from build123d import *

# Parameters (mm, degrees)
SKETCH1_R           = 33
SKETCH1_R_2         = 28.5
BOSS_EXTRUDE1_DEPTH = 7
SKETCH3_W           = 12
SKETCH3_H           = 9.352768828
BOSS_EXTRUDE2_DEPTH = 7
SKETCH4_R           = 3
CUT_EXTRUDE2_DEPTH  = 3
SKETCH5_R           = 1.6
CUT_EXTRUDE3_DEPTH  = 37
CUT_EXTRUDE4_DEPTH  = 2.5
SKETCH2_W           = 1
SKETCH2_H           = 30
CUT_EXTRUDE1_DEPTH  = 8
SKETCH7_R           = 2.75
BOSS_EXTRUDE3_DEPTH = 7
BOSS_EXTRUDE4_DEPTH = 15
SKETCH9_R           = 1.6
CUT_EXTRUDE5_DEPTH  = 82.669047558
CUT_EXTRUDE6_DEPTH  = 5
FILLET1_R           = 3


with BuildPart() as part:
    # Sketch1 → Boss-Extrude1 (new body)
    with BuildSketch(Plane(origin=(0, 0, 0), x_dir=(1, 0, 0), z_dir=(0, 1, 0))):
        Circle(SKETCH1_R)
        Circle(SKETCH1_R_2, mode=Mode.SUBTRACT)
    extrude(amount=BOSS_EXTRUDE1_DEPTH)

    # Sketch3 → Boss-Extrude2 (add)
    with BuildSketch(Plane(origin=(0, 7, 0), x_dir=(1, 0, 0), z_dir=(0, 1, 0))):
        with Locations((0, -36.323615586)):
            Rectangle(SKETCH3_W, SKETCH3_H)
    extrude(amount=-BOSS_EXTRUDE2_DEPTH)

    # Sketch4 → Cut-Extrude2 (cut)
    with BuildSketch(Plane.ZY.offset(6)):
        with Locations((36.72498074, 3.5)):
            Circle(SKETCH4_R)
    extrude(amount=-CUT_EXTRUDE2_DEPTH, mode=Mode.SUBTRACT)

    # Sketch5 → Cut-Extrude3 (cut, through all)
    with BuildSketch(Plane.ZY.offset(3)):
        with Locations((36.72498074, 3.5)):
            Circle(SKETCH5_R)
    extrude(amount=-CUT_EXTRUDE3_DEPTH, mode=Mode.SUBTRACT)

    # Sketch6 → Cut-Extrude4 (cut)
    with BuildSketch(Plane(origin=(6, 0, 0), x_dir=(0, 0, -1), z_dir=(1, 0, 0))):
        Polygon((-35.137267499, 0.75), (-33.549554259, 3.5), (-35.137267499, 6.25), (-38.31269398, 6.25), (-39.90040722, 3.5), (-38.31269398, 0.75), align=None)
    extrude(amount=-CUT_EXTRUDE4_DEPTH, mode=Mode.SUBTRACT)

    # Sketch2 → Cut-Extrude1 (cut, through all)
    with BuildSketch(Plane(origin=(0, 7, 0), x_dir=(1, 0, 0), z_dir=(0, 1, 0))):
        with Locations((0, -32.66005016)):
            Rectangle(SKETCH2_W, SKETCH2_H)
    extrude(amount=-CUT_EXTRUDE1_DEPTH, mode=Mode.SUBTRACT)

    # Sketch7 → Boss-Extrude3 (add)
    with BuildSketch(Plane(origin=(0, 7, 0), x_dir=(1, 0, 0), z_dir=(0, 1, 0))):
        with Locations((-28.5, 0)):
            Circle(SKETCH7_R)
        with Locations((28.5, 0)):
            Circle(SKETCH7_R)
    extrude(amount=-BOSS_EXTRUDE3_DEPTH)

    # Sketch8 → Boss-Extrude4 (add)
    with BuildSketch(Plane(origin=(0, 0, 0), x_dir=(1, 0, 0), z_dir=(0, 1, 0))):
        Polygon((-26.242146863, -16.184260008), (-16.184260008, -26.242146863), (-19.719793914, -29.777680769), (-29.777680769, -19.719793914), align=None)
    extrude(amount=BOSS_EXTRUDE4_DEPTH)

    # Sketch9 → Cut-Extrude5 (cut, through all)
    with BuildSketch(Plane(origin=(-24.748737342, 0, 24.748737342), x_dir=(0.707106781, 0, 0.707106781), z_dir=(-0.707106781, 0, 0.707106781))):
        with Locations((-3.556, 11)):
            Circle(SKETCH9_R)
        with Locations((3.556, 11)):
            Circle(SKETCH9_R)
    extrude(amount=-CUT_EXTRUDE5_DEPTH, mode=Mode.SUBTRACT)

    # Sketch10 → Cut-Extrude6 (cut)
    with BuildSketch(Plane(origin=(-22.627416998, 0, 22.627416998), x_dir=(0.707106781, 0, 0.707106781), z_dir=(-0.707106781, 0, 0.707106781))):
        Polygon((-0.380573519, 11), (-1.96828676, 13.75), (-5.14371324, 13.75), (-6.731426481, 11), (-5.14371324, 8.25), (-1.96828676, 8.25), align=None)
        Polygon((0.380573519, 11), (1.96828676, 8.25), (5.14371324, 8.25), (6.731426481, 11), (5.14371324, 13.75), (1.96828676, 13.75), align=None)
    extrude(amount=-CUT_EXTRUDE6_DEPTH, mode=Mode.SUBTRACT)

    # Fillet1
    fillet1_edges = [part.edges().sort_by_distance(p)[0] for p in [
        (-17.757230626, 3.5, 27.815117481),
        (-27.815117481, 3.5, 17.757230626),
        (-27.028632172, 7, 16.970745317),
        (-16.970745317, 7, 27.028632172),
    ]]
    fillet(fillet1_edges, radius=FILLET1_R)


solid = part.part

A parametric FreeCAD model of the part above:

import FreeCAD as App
import Part
import Sketcher
from FreeCAD import Vector
Q = App.Units.Quantity


def edges_at(feature, points):
    """Names of the edges that pass closest to the given points."""
    edges = feature.Shape.Edges
    near = lambda p: min(range(len(edges)), key=lambda i: edges[i].distToShape(Part.Vertex(*p))[0])
    return sorted({f"Edge{near(p) + 1}" for p in points})

doc = App.newDocument("Part")
params = doc.addObject("Spreadsheet::Sheet", "Params")
for row, (alias, value) in enumerate([
    ("sketch1_diameter", "66 mm"),
    ("sketch1_diameter2", "57 mm"),
    ("pad1_length", "7 mm"),
    ("sketch2_width", "12 mm"),
    ("pad2_length", "7 mm"),
    ("sketch3_diameter", "6 mm"),
    ("pocket1_length", "3 mm"),
    ("sketch4_diameter", "3.2 mm"),
    ("pocket3_length", "2.5 mm"),
    ("sketch6_width", "1 mm"),
    ("sketch6_height", "30 mm"),
    ("sketch7_diameter", "5.5 mm"),
    ("pad3_length", "7 mm"),
    ("sketch8_length", "5 mm"),
    ("pad4_length", "15 mm"),
    ("sketch9_diameter", "3.2 mm"),
    ("pocket6_length", "5 mm"),
    ("fillet_radius", "3 mm"),
], start=1):
    params.set(f"A{row}", alias)
    params.set(f"B{row}", "=" + value)
    params.setAlias(f"B{row}", alias)

body = doc.addObject("PartDesign::Body", "Body")

# Sketch on XZ plane
sketch1 = body.newObject("Sketcher::SketchObject", "Sketch")
sketch1.AttachmentSupport = (doc.getObject("XZ_Plane"), [""])
sketch1.MapMode = "FlatFace"
sketch1.addGeometry([
    Part.Circle(Vector(0, 0, 0), Vector(0, 0, 1), 33),
    Part.Circle(Vector(0, 0, 0), Vector(0, 0, 1), 28.5),
], False)
sketch1.addConstraint([
    Sketcher.Constraint("Coincident", 0, 3, -1, 1),
    Sketcher.Constraint("Coincident", 1, 3, -1, 1),
    Sketcher.Constraint("Diameter", 0, Q("66 mm")),
    Sketcher.Constraint("Diameter", 1, Q("57 mm")),
])
sketch1.setExpression("Constraints[2]", "Params.sketch1_diameter")
sketch1.setExpression("Constraints[3]", "Params.sketch1_diameter2")
pad1 = body.newObject("PartDesign::Pad", "Pad")
pad1.Profile = sketch1
pad1.setExpression("Length", "Params.pad1_length")
pad1.Reversed = True

# Sketch on XZ plane
sketch2 = body.newObject("Sketcher::SketchObject", "Sketch001")
sketch2.AttachmentSupport = (doc.getObject("XZ_Plane"), [""])
sketch2.MapMode = "FlatFace"
sketch2.AttachmentOffset = App.Placement(Vector(0, 0, -7), App.Rotation())
sketch2.addGeometry([
    Part.LineSegment(Vector(-6, 31.647231, 0), Vector(-6, 41, 0)),
    Part.LineSegment(Vector(-6, 41, 0), Vector(6, 41, 0)),
    Part.LineSegment(Vector(6, 41, 0), Vector(6, 31.647231, 0)),
    Part.LineSegment(Vector(6, 31.647231, 0), Vector(-6, 31.647231, 0)),
], False)
sketch2.addConstraint([
    Sketcher.Constraint("Coincident", 0, 2, 1, 1),
    Sketcher.Constraint("Coincident", 1, 2, 2, 1),
    Sketcher.Constraint("Coincident", 2, 2, 3, 1),
    Sketcher.Constraint("Coincident", 3, 2, 0, 1),
    Sketcher.Constraint("Vertical", 0),
    Sketcher.Constraint("Horizontal", 1),
    Sketcher.Constraint("Vertical", 2),
    Sketcher.Constraint("Horizontal", 3),
    Sketcher.Constraint("DistanceX", 1, 1, 1, 2, Q("12 mm")),
    Sketcher.Constraint("DistanceX", 0, 2, -1, 1, Q("6 mm")),
    Sketcher.Constraint("DistanceY", -1, 1, 0, 2, Q("41 mm")),
    Sketcher.Constraint("DistanceY", 0, 1, 0, 2, Q("9.352769 mm")),
])
sketch2.setExpression("Constraints[8]", "Params.sketch2_width")
pad2 = body.newObject("PartDesign::Pad", "Pad001")
pad2.Profile = sketch2
pad2.setExpression("Length", "Params.pad2_length")

# Sketch on YZ plane
sketch3 = body.newObject("Sketcher::SketchObject", "Sketch002")
sketch3.AttachmentSupport = (doc.getObject("YZ_Plane"), [""])
sketch3.MapMode = "FlatFace"
sketch3.AttachmentOffset = App.Placement(Vector(0, 0, -6), App.Rotation())
sketch3.addGeometry(Part.Circle(Vector(3.5, 36.724981, 0), Vector(0, 0, 1), 3), False)
sketch3.addConstraint([
    Sketcher.Constraint("Diameter", 0, Q("6 mm")),
    Sketcher.Constraint("DistanceX", -1, 1, 0, 3, Q("3.5 mm")),
    Sketcher.Constraint("DistanceY", -1, 1, 0, 3, Q("36.724981 mm")),
])
sketch3.setExpression("Constraints[0]", "Params.sketch3_diameter")
pocket1 = body.newObject("PartDesign::Pocket", "Pocket")
pocket1.Profile = sketch3
pocket1.setExpression("Length", "Params.pocket1_length")
pocket1.Reversed = True

# Sketch on YZ plane
sketch4 = body.newObject("Sketcher::SketchObject", "Sketch003")
sketch4.AttachmentSupport = (doc.getObject("YZ_Plane"), [""])
sketch4.MapMode = "FlatFace"
sketch4.AttachmentOffset = App.Placement(Vector(0, 0, -3), App.Rotation())
sketch4.addGeometry(Part.Circle(Vector(3.5, 36.724981, 0), Vector(0, 0, 1), 1.6), False)
sketch4.addConstraint([
    Sketcher.Constraint("Diameter", 0, Q("3.2 mm")),
    Sketcher.Constraint("DistanceX", -1, 1, 0, 3, Q("3.5 mm")),
    Sketcher.Constraint("DistanceY", -1, 1, 0, 3, Q("36.724981 mm")),
])
sketch4.setExpression("Constraints[0]", "Params.sketch4_diameter")
pocket2 = body.newObject("PartDesign::Pocket", "Pocket001")
pocket2.Profile = sketch4
pocket2.Type = "ThroughAll"
pocket2.Reversed = True

# Sketch on YZ plane
sketch5 = body.newObject("Sketcher::SketchObject", "Sketch004")
sketch5.AttachmentSupport = (doc.getObject("YZ_Plane"), [""])
sketch5.MapMode = "FlatFace"
sketch5.AttachmentOffset = App.Placement(Vector(0, 0, 6), App.Rotation())
sketch5.addGeometry([
    Part.LineSegment(Vector(0.75, 35.137267, 0), Vector(3.5, 33.549554, 0)),  # 0
    Part.LineSegment(Vector(3.5, 33.549554, 0), Vector(6.25, 35.137267, 0)),  # 1
    Part.LineSegment(Vector(6.25, 35.137267, 0), Vector(6.25, 38.312694, 0)),  # 2
    Part.LineSegment(Vector(6.25, 38.312694, 0), Vector(3.5, 39.900407, 0)),  # 3
    Part.LineSegment(Vector(3.5, 39.900407, 0), Vector(0.75, 38.312694, 0)),  # 4
    Part.LineSegment(Vector(0.75, 38.312694, 0), Vector(0.75, 35.137267, 0)),  # 5
], False)
sketch5.addConstraint([
    Sketcher.Constraint("Coincident", 0, 2, 1, 1),
    Sketcher.Constraint("Coincident", 1, 2, 2, 1),
    Sketcher.Constraint("Coincident", 2, 2, 3, 1),
    Sketcher.Constraint("Coincident", 3, 2, 4, 1),
    Sketcher.Constraint("Coincident", 4, 2, 5, 1),
    Sketcher.Constraint("Coincident", 5, 2, 0, 1),
    Sketcher.Constraint("Vertical", 2),
    Sketcher.Constraint("Vertical", 5),
    Sketcher.Constraint("Parallel", 0, 3),
    Sketcher.Constraint("Parallel", 1, 4),
    Sketcher.Constraint("Horizontal", 2, 2, 4, 2),
    Sketcher.Constraint("Horizontal", 1, 2, 5, 2),
    Sketcher.Constraint("Vertical", 0, 2, 3, 2),
    Sketcher.Constraint("Angle", 0, Q("-30 deg")),
    Sketcher.Constraint("DistanceX", -1, 1, 0, 2, Q("3.5 mm")),
    Sketcher.Constraint("DistanceX", 4, 2, 2, 2, Q("5.5 mm")),
    Sketcher.Constraint("DistanceY", 2, 1, 2, 2, Q("3.175426 mm")),
    Sketcher.Constraint("DistanceY", -1, 1, 0, 2, Q("33.549554 mm")),
])
pocket3 = body.newObject("PartDesign::Pocket", "Pocket002")
pocket3.Profile = sketch5
pocket3.setExpression("Length", "Params.pocket3_length")

# Sketch on XZ plane
sketch6 = body.newObject("Sketcher::SketchObject", "Sketch005")
sketch6.AttachmentSupport = (doc.getObject("XZ_Plane"), [""])
sketch6.MapMode = "FlatFace"
sketch6.AttachmentOffset = App.Placement(Vector(0, 0, -7), App.Rotation())
sketch6.addGeometry([
    Part.LineSegment(Vector(-0.5, 17.66005, 0), Vector(-0.5, 47.66005, 0)),
    Part.LineSegment(Vector(-0.5, 47.66005, 0), Vector(0.5, 47.66005, 0)),
    Part.LineSegment(Vector(0.5, 47.66005, 0), Vector(0.5, 17.66005, 0)),
    Part.LineSegment(Vector(0.5, 17.66005, 0), Vector(-0.5, 17.66005, 0)),
], False)
sketch6.addConstraint([
    Sketcher.Constraint("Coincident", 0, 2, 1, 1),
    Sketcher.Constraint("Coincident", 1, 2, 2, 1),
    Sketcher.Constraint("Coincident", 2, 2, 3, 1),
    Sketcher.Constraint("Coincident", 3, 2, 0, 1),
    Sketcher.Constraint("Vertical", 0),
    Sketcher.Constraint("Horizontal", 1),
    Sketcher.Constraint("Vertical", 2),
    Sketcher.Constraint("Horizontal", 3),
    Sketcher.Constraint("DistanceX", 1, 1, 1, 2, Q("1 mm")),
    Sketcher.Constraint("DistanceY", 0, 1, 0, 2, Q("30 mm")),
    Sketcher.Constraint("DistanceX", 0, 2, -1, 1, Q("0.5 mm")),
    Sketcher.Constraint("DistanceY", -1, 1, 0, 2, Q("47.66005 mm")),
])
sketch6.setExpression("Constraints[8]", "Params.sketch6_width")
sketch6.setExpression("Constraints[9]", "Params.sketch6_height")
pocket4 = body.newObject("PartDesign::Pocket", "Pocket003")
pocket4.Profile = sketch6
pocket4.Type = "ThroughAll"
pocket4.Reversed = True

# Sketch on XZ plane
sketch7 = body.newObject("Sketcher::SketchObject", "Sketch006")
sketch7.AttachmentSupport = (doc.getObject("XZ_Plane"), [""])
sketch7.MapMode = "FlatFace"
sketch7.AttachmentOffset = App.Placement(Vector(0, 0, -7), App.Rotation())
sketch7.addGeometry([
    Part.Circle(Vector(-28.5, 0, 0), Vector(0, 0, 1), 2.75),
    Part.Circle(Vector(28.5, 0, 0), Vector(0, 0, 1), 2.75),
], False)
sketch7.addConstraint([
    Sketcher.Constraint("Equal", 0, 1),
    Sketcher.Constraint("Symmetric", 0, 3, 1, 3, -1, 1),
    Sketcher.Constraint("PointOnObject", 0, 3, -1),
    Sketcher.Constraint("Diameter", 0, Q("5.5 mm")),
    Sketcher.Constraint("DistanceX", 0, 3, 1, 3, Q("57 mm")),
])
sketch7.setExpression("Constraints[3]", "Params.sketch7_diameter")
pad3 = body.newObject("PartDesign::Pad", "Pad002")
pad3.Profile = sketch7
pad3.setExpression("Length", "Params.pad3_length")

# Sketch on XZ plane
sketch8 = body.newObject("Sketcher::SketchObject", "Sketch007")
sketch8.AttachmentSupport = (doc.getObject("XZ_Plane"), [""])
sketch8.MapMode = "FlatFace"
sketch8.addGeometry([
    Part.LineSegment(Vector(-16.18426, 26.242147, 0), Vector(-26.242147, 16.18426, 0)),
    Part.LineSegment(Vector(-26.242147, 16.18426, 0), Vector(-29.777681, 19.719794, 0)),
    Part.LineSegment(Vector(-29.777681, 19.719794, 0), Vector(-19.719794, 29.777681, 0)),
    Part.LineSegment(Vector(-19.719794, 29.777681, 0), Vector(-16.18426, 26.242147, 0)),
], False)
sketch8.addConstraint([
    Sketcher.Constraint("Coincident", 0, 2, 1, 1),
    Sketcher.Constraint("Coincident", 1, 2, 2, 1),
    Sketcher.Constraint("Coincident", 2, 2, 3, 1),
    Sketcher.Constraint("Coincident", 3, 2, 0, 1),
    Sketcher.Constraint("Perpendicular", 0, 1),
    Sketcher.Constraint("Perpendicular", 1, 2),
    Sketcher.Constraint("Perpendicular", 2, 3),
    Sketcher.Constraint("Angle", 0, Q("-135 deg")),
    Sketcher.Constraint("Distance", 1, Q("5 mm")),
    Sketcher.Constraint("Distance", 0, Q("14.224 mm")),
    Sketcher.Constraint("DistanceY", -1, 1, 0, 2, Q("16.18426 mm")),
    Sketcher.Constraint("DistanceX", 1, 2, -1, 1, Q("29.777681 mm")),
])
sketch8.setExpression("Constraints[8]", "Params.sketch8_length")
pad4 = body.newObject("PartDesign::Pad", "Pad003")
pad4.Profile = sketch8
pad4.setExpression("Length", "Params.pad4_length")
pad4.Reversed = True

# Sketch on an angled plane
sketch9 = body.newObject("Sketcher::SketchObject", "Sketch008")
sketch9.Placement = App.Placement(Vector(-24.748737, 0, 24.748737), App.Rotation(Vector(0.707106781, 0, 0.707106781), Vector(0, 0.999999999, 0), Vector(-0.707106781, 0, 0.707106781), "ZXY"))
sketch9.addGeometry([
    Part.Circle(Vector(-3.556, 11, 0), Vector(0, 0, 1), 1.6),
    Part.Circle(Vector(3.556, 11, 0), Vector(0, 0, 1), 1.6),
], False)
sketch9.addConstraint([
    Sketcher.Constraint("Equal", 0, 1),
    Sketcher.Constraint("Symmetric", 0, 3, 1, 3, -2),
    Sketcher.Constraint("Diameter", 0, Q("3.2 mm")),
    Sketcher.Constraint("DistanceY", -1, 1, 0, 3, Q("11 mm")),
    Sketcher.Constraint("DistanceX", 0, 3, -1, 1, Q("3.556 mm")),
])
sketch9.setExpression("Constraints[2]", "Params.sketch9_diameter")
pocket5 = body.newObject("PartDesign::Pocket", "Pocket004")
pocket5.Profile = sketch9
pocket5.Type = "ThroughAll"

# Sketch on an angled plane
sketch10 = body.newObject("Sketcher::SketchObject", "Sketch009")
sketch10.Placement = App.Placement(Vector(-22.627417, 0, 22.627417), App.Rotation(Vector(0.707106781, 0, 0.707106781), Vector(0, 0.999999999, 0), Vector(-0.707106781, 0, 0.707106781), "ZXY"))
sketch10.addGeometry([
    Part.LineSegment(Vector(-0.380574, 11, 0), Vector(-1.968287, 13.75, 0)),  # 0
    Part.LineSegment(Vector(-1.968287, 13.75, 0), Vector(-5.143713, 13.75, 0)),  # 1
    Part.LineSegment(Vector(-5.143713, 13.75, 0), Vector(-6.731426, 11, 0)),  # 2
    Part.LineSegment(Vector(-6.731426, 11, 0), Vector(-5.143713, 8.25, 0)),  # 3
    Part.LineSegment(Vector(-5.143713, 8.25, 0), Vector(-1.968287, 8.25, 0)),  # 4
    Part.LineSegment(Vector(-1.968287, 8.25, 0), Vector(-0.380574, 11, 0)),  # 5
    Part.LineSegment(Vector(0.380574, 11, 0), Vector(1.968287, 8.25, 0)),  # 6
    Part.LineSegment(Vector(1.968287, 8.25, 0), Vector(5.143713, 8.25, 0)),  # 7
    Part.LineSegment(Vector(5.143713, 8.25, 0), Vector(6.731426, 11, 0)),  # 8
    Part.LineSegment(Vector(6.731426, 11, 0), Vector(5.143713, 13.75, 0)),  # 9
    Part.LineSegment(Vector(5.143713, 13.75, 0), Vector(1.968287, 13.75, 0)),  # 10
    Part.LineSegment(Vector(1.968287, 13.75, 0), Vector(0.380574, 11, 0)),  # 11
], False)
sketch10.addConstraint([
    Sketcher.Constraint("Coincident", 0, 2, 1, 1),
    Sketcher.Constraint("Coincident", 1, 2, 2, 1),
    Sketcher.Constraint("Coincident", 2, 2, 3, 1),
    Sketcher.Constraint("Coincident", 3, 2, 4, 1),
    Sketcher.Constraint("Coincident", 4, 2, 5, 1),
    Sketcher.Constraint("Coincident", 5, 2, 0, 1),
    Sketcher.Constraint("Coincident", 6, 2, 7, 1),
    Sketcher.Constraint("Coincident", 7, 2, 8, 1),
    Sketcher.Constraint("Coincident", 8, 2, 9, 1),
    Sketcher.Constraint("Coincident", 9, 2, 10, 1),
    Sketcher.Constraint("Coincident", 10, 2, 11, 1),
    Sketcher.Constraint("Coincident", 11, 2, 6, 1),
    Sketcher.Constraint("Horizontal", 1),
    Sketcher.Constraint("Horizontal", 4),
    Sketcher.Constraint("Horizontal", 7),
    Sketcher.Constraint("Horizontal", 10),
    Sketcher.Constraint("Symmetric", 4, 2, 6, 2, -2),
    Sketcher.Constraint("Symmetric", 2, 2, 8, 2, -2),
    Sketcher.Constraint("Symmetric", 1, 2, 9, 2, -2),
    Sketcher.Constraint("Symmetric", 5, 2, 11, 2, -2),
    Sketcher.Constraint("Parallel", 0, 3),
    Sketcher.Constraint("Parallel", 2, 5),
    Sketcher.Constraint("Parallel", 3, 6),
    Sketcher.Constraint("Parallel", 5, 8),
    Sketcher.Constraint("Parallel", 8, 11),
    Sketcher.Constraint("Horizontal", 2, 2, 5, 2),
    Sketcher.Constraint("Vertical", 1, 2, 3, 2),
    Sketcher.Constraint("Angle", 0, Q("120 deg")),
    Sketcher.Constraint("DistanceY", -1, 1, 2, 2, Q("11 mm")),
    Sketcher.Constraint("DistanceY", 3, 2, 1, 2, Q("5.5 mm")),
    Sketcher.Constraint("DistanceX", 3, 2, 6, 2, Q("7.112 mm")),
    Sketcher.Constraint("DistanceX", 1, 2, 1, 1, Q("3.175426 mm")),
])
pocket6 = body.newObject("PartDesign::Pocket", "Pocket005")
pocket6.Profile = sketch10
pocket6.setExpression("Length", "Params.pocket6_length")
doc.recompute()

fillet = body.newObject("PartDesign::Fillet", "Fillet")
fillet.Base = (pocket6, edges_at(pocket6, [
    (-17.757, 3.5, 27.815),
    (-27.815, 3.5, 17.757),
    (-27.029, 7, 16.971),
    (-16.971, 7, 27.029),
]))
fillet.setExpression("Radius", "Params.fillet_radius")

doc.recompute()
